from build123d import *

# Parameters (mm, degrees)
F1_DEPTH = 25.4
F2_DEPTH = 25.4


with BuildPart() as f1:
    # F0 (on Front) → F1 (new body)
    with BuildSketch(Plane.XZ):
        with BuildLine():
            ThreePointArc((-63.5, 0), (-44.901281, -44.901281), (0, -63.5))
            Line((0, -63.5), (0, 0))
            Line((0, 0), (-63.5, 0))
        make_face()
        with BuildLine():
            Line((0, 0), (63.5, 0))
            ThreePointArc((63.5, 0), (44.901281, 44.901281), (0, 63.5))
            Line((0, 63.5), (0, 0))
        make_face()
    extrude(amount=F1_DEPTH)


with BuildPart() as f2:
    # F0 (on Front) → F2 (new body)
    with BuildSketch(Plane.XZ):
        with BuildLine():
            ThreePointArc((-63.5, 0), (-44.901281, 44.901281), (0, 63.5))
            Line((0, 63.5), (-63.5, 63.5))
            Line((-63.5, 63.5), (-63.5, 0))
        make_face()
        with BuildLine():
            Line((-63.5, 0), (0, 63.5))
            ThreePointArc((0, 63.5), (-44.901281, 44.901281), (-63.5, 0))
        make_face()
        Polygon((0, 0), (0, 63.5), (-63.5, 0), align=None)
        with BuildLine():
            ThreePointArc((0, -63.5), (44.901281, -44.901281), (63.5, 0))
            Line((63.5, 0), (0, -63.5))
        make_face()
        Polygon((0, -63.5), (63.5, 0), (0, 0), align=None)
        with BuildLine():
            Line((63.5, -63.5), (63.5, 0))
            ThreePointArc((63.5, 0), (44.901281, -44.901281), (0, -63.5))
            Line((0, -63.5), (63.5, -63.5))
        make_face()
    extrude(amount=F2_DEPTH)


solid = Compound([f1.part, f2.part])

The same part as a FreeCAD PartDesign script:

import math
import FreeCAD as App
import Part
import Sketcher

V = App.Vector
Q = App.Units.Quantity


def add_polygon(sketch, points):
    """Adds a closed chain of lines whose ends are joined by coincident constraints."""
    first, n = sketch.GeometryCount, len(points)
    for a, b in zip(points, points[1:] + points[:1]):
        sketch.addGeometry(Part.LineSegment(App.Vector(*a, 0), App.Vector(*b, 0)), False)
    for i in range(n):
        sketch.addConstraint(Sketcher.Constraint("Coincident", first + i, 2, first + (i + 1) % n, 1))

doc = App.newDocument("Part")
body = doc.addObject("PartDesign::Body", "Body")
body.AllowCompound = True

# Sketch on XZ plane
sketch1 = body.newObject("Sketcher::SketchObject", "Sketch")
sketch1.AttachmentSupport = (doc.getObject("XZ_Plane"), [""])
sketch1.MapMode = "FlatFace"
sketch1.addGeometry(Part.ArcOfCircle(Part.Circle(V(0, 0, 0), V(0, 0, 1), 63), math.radians(180), math.radians(270)), False)
sketch1.addGeometry(Part.LineSegment(V(0, -64, 0), V(0, 0, 0)), False)
sketch1.addGeometry(Part.LineSegment(V(0, 0, 0), V(-64, 0, 0)), False)
sketch1.addGeometry(Part.LineSegment(V(0, 0, 0), V(64, 0, 0)), False)
sketch1.addGeometry(Part.ArcOfCircle(Part.Circle(V(0, 0, 0), V(0, 0, 1), 63), math.radians(0), math.radians(90)), False)
sketch1.addGeometry(Part.LineSegment(V(0, 64, 0), V(0, 0, 0)), False)
sketch1.addConstraint(Sketcher.Constraint("Coincident", 0, 2, 1, 1))
sketch1.addConstraint(Sketcher.Constraint("Coincident", 1, 2, 2, 1))
sketch1.addConstraint(Sketcher.Constraint("Coincident", 2, 2, 0, 1))
sketch1.addConstraint(Sketcher.Constraint("Coincident", 3, 2, 4, 1))
sketch1.addConstraint(Sketcher.Constraint("Coincident", 4, 2, 5, 1))
sketch1.addConstraint(Sketcher.Constraint("Coincident", 5, 2, 3, 1))
sketch1.addConstraint(Sketcher.Constraint("Vertical", 1))
sketch1.addConstraint(Sketcher.Constraint("Horizontal", 2))
sketch1.addConstraint(Sketcher.Constraint("Horizontal", 3))
sketch1.addConstraint(Sketcher.Constraint("Vertical", 5))
sketch1.addConstraint(Sketcher.Constraint("Coincident", 0, 3, -1, 1))
sketch1.addConstraint(Sketcher.Constraint("Coincident", 4, 3, -1, 1))
sketch1.addConstraint(Sketcher.Constraint("Coincident", 1, 2, -1, 1))
sketch1.addConstraint(Sketcher.Constraint("Coincident", 5, 2, -1, 1))
sketch1.addConstraint(Sketcher.Constraint("Equal", 0, 4))
sketch1.addConstraint(Sketcher.Constraint("Radius", 0, Q("2.4999999 in")))
pad1 = body.newObject("PartDesign::Pad", "Pad")
pad1.Profile = sketch1
pad1.Length = Q("1 in")
body2 = doc.addObject("PartDesign::Body", "Body001")
body2.AllowCompound = True

# Sketch on XZ plane
sketch2 = body2.newObject("Sketcher::SketchObject", "Sketch001")
sketch2.AttachmentSupport = (doc.getObject("XZ_Plane001"), [""])
sketch2.MapMode = "FlatFace"
add_polygon(sketch2, [(0, 64), (-64, 64), (-64, 0), (0, 0)])  # lines 0-3
add_polygon(sketch2, [(64, 0), (0, 0), (0, -64), (64, -64)])  # lines 4-7
sketch2.addConstraint(Sketcher.Constraint("Horizontal", 0))
sketch2.addConstraint(Sketcher.Constraint("Vertical", 1))
sketch2.addConstraint(Sketcher.Constraint("Horizontal", 2))
sketch2.addConstraint(Sketcher.Constraint("Vertical", 3))
sketch2.addConstraint(Sketcher.Constraint("Horizontal", 4))
sketch2.addConstraint(Sketcher.Constraint("Vertical", 5))
sketch2.addConstraint(Sketcher.Constraint("Horizontal", 6))
sketch2.addConstraint(Sketcher.Constraint("Vertical", 7))
sketch2.addConstraint(Sketcher.Constraint("Coincident", 2, 2, -1, 1))
sketch2.addConstraint(Sketcher.Constraint("Coincident", 4, 2, -1, 1))
sketch2.addConstraint(Sketcher.Constraint("Symmetric", 0, 2, 6, 2, -1, 1))
sketch2.addConstraint(Sketcher.Constraint("Equal", 6, 1))
sketch2.addConstraint(Sketcher.Constraint("DistanceX", 0, 2, 0, 1, Q("2.5 in")))
pad2 = body2.newObject("PartDesign::Pad", "Pad001")
pad2.Profile = sketch2
pad2.Length = Q("1 in")

doc.recompute()
